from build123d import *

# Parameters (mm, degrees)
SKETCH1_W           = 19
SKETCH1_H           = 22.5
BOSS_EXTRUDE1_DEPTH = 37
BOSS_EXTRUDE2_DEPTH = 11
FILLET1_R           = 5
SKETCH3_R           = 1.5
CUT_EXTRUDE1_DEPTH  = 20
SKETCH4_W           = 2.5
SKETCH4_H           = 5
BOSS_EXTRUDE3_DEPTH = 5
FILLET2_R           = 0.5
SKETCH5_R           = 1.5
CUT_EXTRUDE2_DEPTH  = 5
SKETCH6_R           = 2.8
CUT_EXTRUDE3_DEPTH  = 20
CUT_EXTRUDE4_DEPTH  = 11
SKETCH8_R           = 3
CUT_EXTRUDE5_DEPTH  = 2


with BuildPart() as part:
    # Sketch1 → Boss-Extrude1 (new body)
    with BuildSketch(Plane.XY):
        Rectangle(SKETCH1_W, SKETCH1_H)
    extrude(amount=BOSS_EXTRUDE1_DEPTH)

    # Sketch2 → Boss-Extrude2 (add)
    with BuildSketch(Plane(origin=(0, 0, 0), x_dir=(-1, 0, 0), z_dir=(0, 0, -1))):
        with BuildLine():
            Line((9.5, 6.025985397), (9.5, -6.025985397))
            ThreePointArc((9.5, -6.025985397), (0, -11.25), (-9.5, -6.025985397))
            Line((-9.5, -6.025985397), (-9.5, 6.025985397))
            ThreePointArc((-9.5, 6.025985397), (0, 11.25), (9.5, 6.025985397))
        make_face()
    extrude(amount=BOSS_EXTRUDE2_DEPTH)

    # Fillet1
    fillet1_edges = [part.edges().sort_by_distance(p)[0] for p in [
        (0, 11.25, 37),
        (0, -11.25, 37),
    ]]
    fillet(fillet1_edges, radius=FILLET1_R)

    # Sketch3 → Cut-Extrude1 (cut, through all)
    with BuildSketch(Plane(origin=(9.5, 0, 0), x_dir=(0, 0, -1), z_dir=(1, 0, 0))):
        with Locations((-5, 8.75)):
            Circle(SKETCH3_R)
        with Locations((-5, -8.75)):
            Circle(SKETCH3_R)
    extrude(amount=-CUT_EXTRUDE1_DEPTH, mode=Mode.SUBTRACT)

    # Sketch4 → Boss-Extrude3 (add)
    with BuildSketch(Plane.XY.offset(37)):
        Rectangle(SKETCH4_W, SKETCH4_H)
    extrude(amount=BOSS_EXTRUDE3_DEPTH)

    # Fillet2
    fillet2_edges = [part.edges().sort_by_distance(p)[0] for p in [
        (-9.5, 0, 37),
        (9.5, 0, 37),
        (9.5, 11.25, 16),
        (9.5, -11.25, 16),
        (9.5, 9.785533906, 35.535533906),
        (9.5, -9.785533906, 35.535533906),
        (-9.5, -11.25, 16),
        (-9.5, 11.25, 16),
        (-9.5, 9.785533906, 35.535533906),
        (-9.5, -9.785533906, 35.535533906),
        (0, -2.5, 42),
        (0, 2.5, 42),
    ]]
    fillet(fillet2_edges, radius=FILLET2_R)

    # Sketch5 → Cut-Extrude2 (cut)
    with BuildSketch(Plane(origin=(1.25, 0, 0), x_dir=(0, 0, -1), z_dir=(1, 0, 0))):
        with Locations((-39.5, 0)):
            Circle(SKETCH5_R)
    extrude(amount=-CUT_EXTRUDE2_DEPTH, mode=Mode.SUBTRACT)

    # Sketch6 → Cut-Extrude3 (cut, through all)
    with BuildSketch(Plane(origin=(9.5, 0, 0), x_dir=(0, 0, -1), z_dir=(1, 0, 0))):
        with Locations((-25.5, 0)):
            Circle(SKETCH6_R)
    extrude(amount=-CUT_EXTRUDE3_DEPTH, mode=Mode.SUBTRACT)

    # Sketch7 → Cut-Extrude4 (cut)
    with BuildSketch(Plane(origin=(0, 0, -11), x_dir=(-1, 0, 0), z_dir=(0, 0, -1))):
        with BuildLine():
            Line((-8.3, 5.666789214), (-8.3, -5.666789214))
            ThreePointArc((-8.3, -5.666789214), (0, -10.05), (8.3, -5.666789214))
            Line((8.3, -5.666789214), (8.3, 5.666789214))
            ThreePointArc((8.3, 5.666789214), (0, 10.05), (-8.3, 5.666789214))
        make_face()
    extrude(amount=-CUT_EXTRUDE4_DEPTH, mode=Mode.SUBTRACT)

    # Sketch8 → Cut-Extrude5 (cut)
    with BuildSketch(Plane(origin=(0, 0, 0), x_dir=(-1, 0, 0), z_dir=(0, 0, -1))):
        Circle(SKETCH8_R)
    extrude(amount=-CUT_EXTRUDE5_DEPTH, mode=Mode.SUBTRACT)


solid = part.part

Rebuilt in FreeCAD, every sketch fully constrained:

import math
import FreeCAD as App
import Part
import Sketcher
Q = App.Units.Quantity


def edges_at(feature, points):
    """Names of the edges that pass closest to the given points."""
    edges = feature.Shape.Edges
    near = lambda p: min(range(len(edges)), key=lambda i: edges[i].distToShape(Part.Vertex(*p))[0])
    return sorted({f"Edge{near(p) + 1}" for p in points})


def add_polygon(sketch, points):
    """Adds a closed chain of lines whose ends are joined by coincident constraints."""
    first, n = sketch.GeometryCount, len(points)
    for a, b in zip(points, points[1:] + points[:1]):
        sketch.addGeometry(Part.LineSegment(App.Vector(*a, 0), App.Vector(*b, 0)), False)
    for i in range(n):
        sketch.addConstraint(Sketcher.Constraint("Coincident", first + i, 2, first + (i + 1) % n, 1))

doc = App.newDocument("Part")
body = doc.addObject("PartDesign::Body", "Body")

# Sketch on XY plane
sketch1 = body.newObject("Sketcher::SketchObject", "Sketch")
sketch1.AttachmentSupport = (doc.getObject("XY_Plane"), [""])
sketch1.MapMode = "FlatFace"
add_polygon(sketch1, [(-10, 11), (-10, -11), (10, -11), (10, 11)])  # lines 0-3
sketch1.addConstraint([
    Sketcher.Constraint("Vertical", 0),
    Sketcher.Constraint("Horizontal", 1),
    Sketcher.Constraint("Vertical", 2),
    Sketcher.Constraint("Horizontal", 3),
    Sketcher.Constraint("Symmetric", 0, 2, 2, 2, -1, 1),
    Sketcher.Constraint("DistanceX", 1, 1, 1, 2, Q("19 mm")),
    Sketcher.Constraint("DistanceY", 0, 2, 0, 1, Q("22.5 mm")),
])
pad1 = body.newObject("PartDesign::Pad", "Pad")
pad1.Profile = sketch1
pad1.Length = 37

# Sketch on XY plane
sketch2 = body.newObject("Sketcher::SketchObject", "Sketch001")
sketch2.AttachmentSupport = (doc.getObject("XY_Plane"), [""])
sketch2.MapMode = "FlatFace"
sketch2.addGeometry([
    Part.LineSegment(App.Vector(-10, -6, 0), App.Vector(-10, 6, 0)),
    Part.ArcOfCircle(Part.Circle(App.Vector(0, 0, 0), App.Vector(0, 0, 1), 11), math.radians(32), math.radians(148)),
    Part.LineSegment(App.Vector(10, 6, 0), App.Vector(10, -6, 0)),
    Part.ArcOfCircle(Part.Circle(App.Vector(0, 0, 0), App.Vector(0, 0, 1), 11), math.radians(-148), math.radians(-32)),
], False)
sketch2.addConstraint([
    Sketcher.Constraint("Coincident", 0, 2, 1, 2),
    Sketcher.Constraint("Coincident", 1, 1, 2, 1),
    Sketcher.Constraint("Coincident", 2, 2, 3, 2),
    Sketcher.Constraint("Coincident", 3, 1, 0, 1),
    Sketcher.Constraint("Vertical", 0),
    Sketcher.Constraint("Vertical", 2),
    Sketcher.Constraint("Coincident", 1, 3, -1, 1),
    Sketcher.Constraint("Coincident", 3, 3, -1, 1),
    Sketcher.Constraint("Equal", 1, 3),
    Sketcher.Constraint("Horizontal", 0, 2, 1, 1),
    Sketcher.Constraint("Radius", 1, Q("11.25 mm")),
    Sketcher.Constraint("DistanceX", 0, 2, 1, 1, Q("19 mm")),
])
pad2 = body.newObject("PartDesign::Pad", "Pad001")
pad2.Profile = sketch2
pad2.Length = 11
pad2.Reversed = True
doc.recompute()

fillet = body.newObject("PartDesign::Fillet", "Fillet")
fillet.Base = (pad2, edges_at(pad2, [(0, 11.25, 37), (0, -11.25, 37)]))
fillet.Radius = 5

# Sketch on YZ plane
sketch3 = body.newObject("Sketcher::SketchObject", "Sketch002")
sketch3.AttachmentSupport = (doc.getObject("YZ_Plane"), [""])
sketch3.MapMode = "FlatFace"
sketch3.AttachmentOffset = App.Placement(App.Vector(0, 0, 9.5), App.Rotation())
sketch3.addGeometry([
    Part.Circle(App.Vector(8.8, 5, 0), App.Vector(0, 0, 1), 1.5),
    Part.Circle(App.Vector(-8.8, 5, 0), App.Vector(0, 0, 1), 1.5),
], False)
sketch3.addConstraint([
    Sketcher.Constraint("Equal", 0, 1),
    Sketcher.Constraint("Symmetric", 0, 3, 1, 3, -2),
    Sketcher.Constraint("Diameter", 0, Q("3 mm")),
    Sketcher.Constraint("DistanceY", -1, 1, 0, 3, Q("5 mm")),
    Sketcher.Constraint("DistanceX", 1, 3, 0, 3, Q("17.5 mm")),
])
pocket1 = body.newObject("PartDesign::Pocket", "Pocket")
pocket1.Profile = sketch3
pocket1.Type = "ThroughAll"

# Sketch on XY plane
sketch4 = body.newObject("Sketcher::SketchObject", "Sketch003")
sketch4.AttachmentSupport = (doc.getObject("XY_Plane"), [""])
sketch4.MapMode = "FlatFace"
sketch4.AttachmentOffset = App.Placement(App.Vector(0, 0, 37), App.Rotation())
add_polygon(sketch4, [(-1.2, 2.5), (-1.2, -2.5), (1.2, -2.5), (1.2, 2.5)])  # lines 0-3
sketch4.addConstraint([
    Sketcher.Constraint("Vertical", 0),
    Sketcher.Constraint("Horizontal", 1),
    Sketcher.Constraint("Vertical", 2),
    Sketcher.Constraint("Horizontal", 3),
    Sketcher.Constraint("Symmetric", 0, 2, 2, 2, -1, 1),
    Sketcher.Constraint("DistanceY", 0, 2, 0, 1, Q("5 mm")),
    Sketcher.Constraint("DistanceX", 1, 1, 1, 2, Q("2.5 mm")),
])
pad3 = body.newObject("PartDesign::Pad", "Pad002")
pad3.Profile = sketch4
pad3.Length = 5
doc.recompute()

fillet2 = body.newObject("PartDesign::Fillet", "Fillet001")
fillet2.Base = (pad3, edges_at(pad3, [
    (-9.5, 0, 37),
    (9.5, 0, 37),
    (9.5, 11.25, 16),
    (9.5, -11.25, 16),
    (9.5, 9.786, 35.536),
    (9.5, -9.786, 35.536),
    (-9.5, -11.25, 16),
    (-9.5, 11.25, 16),
    (-9.5, 9.786, 35.536),
    (-9.5, -9.786, 35.536),
    (0, -2.5, 42),
    (0, 2.5, 42),
]))
fillet2.Radius = 0.5

# Sketch on YZ plane
sketch5 = body.newObject("Sketcher::SketchObject", "Sketch004")
sketch5.AttachmentSupport = (doc.getObject("YZ_Plane"), [""])
sketch5.MapMode = "FlatFace"
sketch5.AttachmentOffset = App.Placement(App.Vector(0, 0, 1.25), App.Rotation())
sketch5.addGeometry(Part.Circle(App.Vector(0, 39.5, 0), App.Vector(0, 0, 1), 1.5), False)
sketch5.addConstraint([
    Sketcher.Constraint("PointOnObject", 0, 3, -2),
    Sketcher.Constraint("Diameter", 0, Q("3 mm")),
    Sketcher.Constraint("DistanceY", -1, 1, 0, 3, Q("39.5 mm")),
])
pocket2 = body.newObject("PartDesign::Pocket", "Pocket001")
pocket2.Profile = sketch5
pocket2.Length = 5

# Sketch on YZ plane
sketch6 = body.newObject("Sketcher::SketchObject", "Sketch005")
sketch6.AttachmentSupport = (doc.getObject("YZ_Plane"), [""])
sketch6.MapMode = "FlatFace"
sketch6.AttachmentOffset = App.Placement(App.Vector(0, 0, 9.5), App.Rotation())
sketch6.addGeometry(Part.Circle(App.Vector(0, 25.5, 0), App.Vector(0, 0, 1), 2.8), False)
sketch6.addConstraint([
    Sketcher.Constraint("PointOnObject", 0, 3, -2),
    Sketcher.Constraint("Diameter", 0, Q("5.6 mm")),
    Sketcher.Constraint("DistanceY", -1, 1, 0, 3, Q("25.5 mm")),
])
pocket3 = body.newObject("PartDesign::Pocket", "Pocket002")
pocket3.Profile = sketch6
pocket3.Type = "ThroughAll"

# Sketch on XY plane
sketch7 = body.newObject("Sketcher::SketchObject", "Sketch006")
sketch7.AttachmentSupport = (doc.getObject("XY_Plane"), [""])
sketch7.MapMode = "FlatFace"
sketch7.AttachmentOffset = App.Placement(App.Vector(0, 0, -11), App.Rotation())
sketch7.addGeometry([
    Part.LineSegment(App.Vector(8, 6, 0), App.Vector(8, -6, 0)),
    Part.ArcOfCircle(Part.Circle(App.Vector(0, 0, 0), App.Vector(0, 0, 1), 10), math.radians(-146), math.radians(-34)),
    Part.LineSegment(App.Vector(-8, -6, 0), App.Vector(-8, 6, 0)),
    Part.ArcOfCircle(Part.Circle(App.Vector(0, 0, 0), App.Vector(0, 0, 1), 10), math.radians(34), math.radians(146)),
], False)
sketch7.addConstraint([
    Sketcher.Constraint("Coincident", 0, 2, 1, 2),
    Sketcher.Constraint("Coincident", 1, 1, 2, 1),
    Sketcher.Constraint("Coincident", 2, 2, 3, 2),
    Sketcher.Constraint("Coincident", 3, 1, 0, 1),
    Sketcher.Constraint("Vertical", 0),
    Sketcher.Constraint("Vertical", 2),
    Sketcher.Constraint("Coincident", 1, 3, -1, 1),
    Sketcher.Constraint("Coincident", 3, 3, -1, 1),
    Sketcher.Constraint("Equal", 1, 3),
    Sketcher.Constraint("Horizontal", 0, 2, 1, 1),
    Sketcher.Constraint("Radius", 1, Q("10.05 mm")),
    Sketcher.Constraint("DistanceX", -1, 1, 0, 2, Q("8.3 mm")),
])
pocket4 = body.newObject("PartDesign::Pocket", "Pocket003")
pocket4.Profile = sketch7
pocket4.Length = 11
pocket4.Reversed = True

# Sketch on XY plane
sketch8 = body.newObject("Sketcher::SketchObject", "Sketch007")
sketch8.AttachmentSupport = (doc.getObject("XY_Plane"), [""])
sketch8.MapMode = "FlatFace"
sketch8.addGeometry(Part.Circle(App.Vector(0, 0, 0), App.Vector(0, 0, 1), 3), False)
sketch8.addConstraint([
    Sketcher.Constraint("Coincident", 0, 3, -1, 1),
    Sketcher.Constraint("Diameter", 0, Q("6 mm")),
])
pocket5 = body.newObject("PartDesign::Pocket", "Pocket004")
pocket5.Profile = sketch8
pocket5.Length = 2
pocket5.Reversed = True

doc.recompute()
